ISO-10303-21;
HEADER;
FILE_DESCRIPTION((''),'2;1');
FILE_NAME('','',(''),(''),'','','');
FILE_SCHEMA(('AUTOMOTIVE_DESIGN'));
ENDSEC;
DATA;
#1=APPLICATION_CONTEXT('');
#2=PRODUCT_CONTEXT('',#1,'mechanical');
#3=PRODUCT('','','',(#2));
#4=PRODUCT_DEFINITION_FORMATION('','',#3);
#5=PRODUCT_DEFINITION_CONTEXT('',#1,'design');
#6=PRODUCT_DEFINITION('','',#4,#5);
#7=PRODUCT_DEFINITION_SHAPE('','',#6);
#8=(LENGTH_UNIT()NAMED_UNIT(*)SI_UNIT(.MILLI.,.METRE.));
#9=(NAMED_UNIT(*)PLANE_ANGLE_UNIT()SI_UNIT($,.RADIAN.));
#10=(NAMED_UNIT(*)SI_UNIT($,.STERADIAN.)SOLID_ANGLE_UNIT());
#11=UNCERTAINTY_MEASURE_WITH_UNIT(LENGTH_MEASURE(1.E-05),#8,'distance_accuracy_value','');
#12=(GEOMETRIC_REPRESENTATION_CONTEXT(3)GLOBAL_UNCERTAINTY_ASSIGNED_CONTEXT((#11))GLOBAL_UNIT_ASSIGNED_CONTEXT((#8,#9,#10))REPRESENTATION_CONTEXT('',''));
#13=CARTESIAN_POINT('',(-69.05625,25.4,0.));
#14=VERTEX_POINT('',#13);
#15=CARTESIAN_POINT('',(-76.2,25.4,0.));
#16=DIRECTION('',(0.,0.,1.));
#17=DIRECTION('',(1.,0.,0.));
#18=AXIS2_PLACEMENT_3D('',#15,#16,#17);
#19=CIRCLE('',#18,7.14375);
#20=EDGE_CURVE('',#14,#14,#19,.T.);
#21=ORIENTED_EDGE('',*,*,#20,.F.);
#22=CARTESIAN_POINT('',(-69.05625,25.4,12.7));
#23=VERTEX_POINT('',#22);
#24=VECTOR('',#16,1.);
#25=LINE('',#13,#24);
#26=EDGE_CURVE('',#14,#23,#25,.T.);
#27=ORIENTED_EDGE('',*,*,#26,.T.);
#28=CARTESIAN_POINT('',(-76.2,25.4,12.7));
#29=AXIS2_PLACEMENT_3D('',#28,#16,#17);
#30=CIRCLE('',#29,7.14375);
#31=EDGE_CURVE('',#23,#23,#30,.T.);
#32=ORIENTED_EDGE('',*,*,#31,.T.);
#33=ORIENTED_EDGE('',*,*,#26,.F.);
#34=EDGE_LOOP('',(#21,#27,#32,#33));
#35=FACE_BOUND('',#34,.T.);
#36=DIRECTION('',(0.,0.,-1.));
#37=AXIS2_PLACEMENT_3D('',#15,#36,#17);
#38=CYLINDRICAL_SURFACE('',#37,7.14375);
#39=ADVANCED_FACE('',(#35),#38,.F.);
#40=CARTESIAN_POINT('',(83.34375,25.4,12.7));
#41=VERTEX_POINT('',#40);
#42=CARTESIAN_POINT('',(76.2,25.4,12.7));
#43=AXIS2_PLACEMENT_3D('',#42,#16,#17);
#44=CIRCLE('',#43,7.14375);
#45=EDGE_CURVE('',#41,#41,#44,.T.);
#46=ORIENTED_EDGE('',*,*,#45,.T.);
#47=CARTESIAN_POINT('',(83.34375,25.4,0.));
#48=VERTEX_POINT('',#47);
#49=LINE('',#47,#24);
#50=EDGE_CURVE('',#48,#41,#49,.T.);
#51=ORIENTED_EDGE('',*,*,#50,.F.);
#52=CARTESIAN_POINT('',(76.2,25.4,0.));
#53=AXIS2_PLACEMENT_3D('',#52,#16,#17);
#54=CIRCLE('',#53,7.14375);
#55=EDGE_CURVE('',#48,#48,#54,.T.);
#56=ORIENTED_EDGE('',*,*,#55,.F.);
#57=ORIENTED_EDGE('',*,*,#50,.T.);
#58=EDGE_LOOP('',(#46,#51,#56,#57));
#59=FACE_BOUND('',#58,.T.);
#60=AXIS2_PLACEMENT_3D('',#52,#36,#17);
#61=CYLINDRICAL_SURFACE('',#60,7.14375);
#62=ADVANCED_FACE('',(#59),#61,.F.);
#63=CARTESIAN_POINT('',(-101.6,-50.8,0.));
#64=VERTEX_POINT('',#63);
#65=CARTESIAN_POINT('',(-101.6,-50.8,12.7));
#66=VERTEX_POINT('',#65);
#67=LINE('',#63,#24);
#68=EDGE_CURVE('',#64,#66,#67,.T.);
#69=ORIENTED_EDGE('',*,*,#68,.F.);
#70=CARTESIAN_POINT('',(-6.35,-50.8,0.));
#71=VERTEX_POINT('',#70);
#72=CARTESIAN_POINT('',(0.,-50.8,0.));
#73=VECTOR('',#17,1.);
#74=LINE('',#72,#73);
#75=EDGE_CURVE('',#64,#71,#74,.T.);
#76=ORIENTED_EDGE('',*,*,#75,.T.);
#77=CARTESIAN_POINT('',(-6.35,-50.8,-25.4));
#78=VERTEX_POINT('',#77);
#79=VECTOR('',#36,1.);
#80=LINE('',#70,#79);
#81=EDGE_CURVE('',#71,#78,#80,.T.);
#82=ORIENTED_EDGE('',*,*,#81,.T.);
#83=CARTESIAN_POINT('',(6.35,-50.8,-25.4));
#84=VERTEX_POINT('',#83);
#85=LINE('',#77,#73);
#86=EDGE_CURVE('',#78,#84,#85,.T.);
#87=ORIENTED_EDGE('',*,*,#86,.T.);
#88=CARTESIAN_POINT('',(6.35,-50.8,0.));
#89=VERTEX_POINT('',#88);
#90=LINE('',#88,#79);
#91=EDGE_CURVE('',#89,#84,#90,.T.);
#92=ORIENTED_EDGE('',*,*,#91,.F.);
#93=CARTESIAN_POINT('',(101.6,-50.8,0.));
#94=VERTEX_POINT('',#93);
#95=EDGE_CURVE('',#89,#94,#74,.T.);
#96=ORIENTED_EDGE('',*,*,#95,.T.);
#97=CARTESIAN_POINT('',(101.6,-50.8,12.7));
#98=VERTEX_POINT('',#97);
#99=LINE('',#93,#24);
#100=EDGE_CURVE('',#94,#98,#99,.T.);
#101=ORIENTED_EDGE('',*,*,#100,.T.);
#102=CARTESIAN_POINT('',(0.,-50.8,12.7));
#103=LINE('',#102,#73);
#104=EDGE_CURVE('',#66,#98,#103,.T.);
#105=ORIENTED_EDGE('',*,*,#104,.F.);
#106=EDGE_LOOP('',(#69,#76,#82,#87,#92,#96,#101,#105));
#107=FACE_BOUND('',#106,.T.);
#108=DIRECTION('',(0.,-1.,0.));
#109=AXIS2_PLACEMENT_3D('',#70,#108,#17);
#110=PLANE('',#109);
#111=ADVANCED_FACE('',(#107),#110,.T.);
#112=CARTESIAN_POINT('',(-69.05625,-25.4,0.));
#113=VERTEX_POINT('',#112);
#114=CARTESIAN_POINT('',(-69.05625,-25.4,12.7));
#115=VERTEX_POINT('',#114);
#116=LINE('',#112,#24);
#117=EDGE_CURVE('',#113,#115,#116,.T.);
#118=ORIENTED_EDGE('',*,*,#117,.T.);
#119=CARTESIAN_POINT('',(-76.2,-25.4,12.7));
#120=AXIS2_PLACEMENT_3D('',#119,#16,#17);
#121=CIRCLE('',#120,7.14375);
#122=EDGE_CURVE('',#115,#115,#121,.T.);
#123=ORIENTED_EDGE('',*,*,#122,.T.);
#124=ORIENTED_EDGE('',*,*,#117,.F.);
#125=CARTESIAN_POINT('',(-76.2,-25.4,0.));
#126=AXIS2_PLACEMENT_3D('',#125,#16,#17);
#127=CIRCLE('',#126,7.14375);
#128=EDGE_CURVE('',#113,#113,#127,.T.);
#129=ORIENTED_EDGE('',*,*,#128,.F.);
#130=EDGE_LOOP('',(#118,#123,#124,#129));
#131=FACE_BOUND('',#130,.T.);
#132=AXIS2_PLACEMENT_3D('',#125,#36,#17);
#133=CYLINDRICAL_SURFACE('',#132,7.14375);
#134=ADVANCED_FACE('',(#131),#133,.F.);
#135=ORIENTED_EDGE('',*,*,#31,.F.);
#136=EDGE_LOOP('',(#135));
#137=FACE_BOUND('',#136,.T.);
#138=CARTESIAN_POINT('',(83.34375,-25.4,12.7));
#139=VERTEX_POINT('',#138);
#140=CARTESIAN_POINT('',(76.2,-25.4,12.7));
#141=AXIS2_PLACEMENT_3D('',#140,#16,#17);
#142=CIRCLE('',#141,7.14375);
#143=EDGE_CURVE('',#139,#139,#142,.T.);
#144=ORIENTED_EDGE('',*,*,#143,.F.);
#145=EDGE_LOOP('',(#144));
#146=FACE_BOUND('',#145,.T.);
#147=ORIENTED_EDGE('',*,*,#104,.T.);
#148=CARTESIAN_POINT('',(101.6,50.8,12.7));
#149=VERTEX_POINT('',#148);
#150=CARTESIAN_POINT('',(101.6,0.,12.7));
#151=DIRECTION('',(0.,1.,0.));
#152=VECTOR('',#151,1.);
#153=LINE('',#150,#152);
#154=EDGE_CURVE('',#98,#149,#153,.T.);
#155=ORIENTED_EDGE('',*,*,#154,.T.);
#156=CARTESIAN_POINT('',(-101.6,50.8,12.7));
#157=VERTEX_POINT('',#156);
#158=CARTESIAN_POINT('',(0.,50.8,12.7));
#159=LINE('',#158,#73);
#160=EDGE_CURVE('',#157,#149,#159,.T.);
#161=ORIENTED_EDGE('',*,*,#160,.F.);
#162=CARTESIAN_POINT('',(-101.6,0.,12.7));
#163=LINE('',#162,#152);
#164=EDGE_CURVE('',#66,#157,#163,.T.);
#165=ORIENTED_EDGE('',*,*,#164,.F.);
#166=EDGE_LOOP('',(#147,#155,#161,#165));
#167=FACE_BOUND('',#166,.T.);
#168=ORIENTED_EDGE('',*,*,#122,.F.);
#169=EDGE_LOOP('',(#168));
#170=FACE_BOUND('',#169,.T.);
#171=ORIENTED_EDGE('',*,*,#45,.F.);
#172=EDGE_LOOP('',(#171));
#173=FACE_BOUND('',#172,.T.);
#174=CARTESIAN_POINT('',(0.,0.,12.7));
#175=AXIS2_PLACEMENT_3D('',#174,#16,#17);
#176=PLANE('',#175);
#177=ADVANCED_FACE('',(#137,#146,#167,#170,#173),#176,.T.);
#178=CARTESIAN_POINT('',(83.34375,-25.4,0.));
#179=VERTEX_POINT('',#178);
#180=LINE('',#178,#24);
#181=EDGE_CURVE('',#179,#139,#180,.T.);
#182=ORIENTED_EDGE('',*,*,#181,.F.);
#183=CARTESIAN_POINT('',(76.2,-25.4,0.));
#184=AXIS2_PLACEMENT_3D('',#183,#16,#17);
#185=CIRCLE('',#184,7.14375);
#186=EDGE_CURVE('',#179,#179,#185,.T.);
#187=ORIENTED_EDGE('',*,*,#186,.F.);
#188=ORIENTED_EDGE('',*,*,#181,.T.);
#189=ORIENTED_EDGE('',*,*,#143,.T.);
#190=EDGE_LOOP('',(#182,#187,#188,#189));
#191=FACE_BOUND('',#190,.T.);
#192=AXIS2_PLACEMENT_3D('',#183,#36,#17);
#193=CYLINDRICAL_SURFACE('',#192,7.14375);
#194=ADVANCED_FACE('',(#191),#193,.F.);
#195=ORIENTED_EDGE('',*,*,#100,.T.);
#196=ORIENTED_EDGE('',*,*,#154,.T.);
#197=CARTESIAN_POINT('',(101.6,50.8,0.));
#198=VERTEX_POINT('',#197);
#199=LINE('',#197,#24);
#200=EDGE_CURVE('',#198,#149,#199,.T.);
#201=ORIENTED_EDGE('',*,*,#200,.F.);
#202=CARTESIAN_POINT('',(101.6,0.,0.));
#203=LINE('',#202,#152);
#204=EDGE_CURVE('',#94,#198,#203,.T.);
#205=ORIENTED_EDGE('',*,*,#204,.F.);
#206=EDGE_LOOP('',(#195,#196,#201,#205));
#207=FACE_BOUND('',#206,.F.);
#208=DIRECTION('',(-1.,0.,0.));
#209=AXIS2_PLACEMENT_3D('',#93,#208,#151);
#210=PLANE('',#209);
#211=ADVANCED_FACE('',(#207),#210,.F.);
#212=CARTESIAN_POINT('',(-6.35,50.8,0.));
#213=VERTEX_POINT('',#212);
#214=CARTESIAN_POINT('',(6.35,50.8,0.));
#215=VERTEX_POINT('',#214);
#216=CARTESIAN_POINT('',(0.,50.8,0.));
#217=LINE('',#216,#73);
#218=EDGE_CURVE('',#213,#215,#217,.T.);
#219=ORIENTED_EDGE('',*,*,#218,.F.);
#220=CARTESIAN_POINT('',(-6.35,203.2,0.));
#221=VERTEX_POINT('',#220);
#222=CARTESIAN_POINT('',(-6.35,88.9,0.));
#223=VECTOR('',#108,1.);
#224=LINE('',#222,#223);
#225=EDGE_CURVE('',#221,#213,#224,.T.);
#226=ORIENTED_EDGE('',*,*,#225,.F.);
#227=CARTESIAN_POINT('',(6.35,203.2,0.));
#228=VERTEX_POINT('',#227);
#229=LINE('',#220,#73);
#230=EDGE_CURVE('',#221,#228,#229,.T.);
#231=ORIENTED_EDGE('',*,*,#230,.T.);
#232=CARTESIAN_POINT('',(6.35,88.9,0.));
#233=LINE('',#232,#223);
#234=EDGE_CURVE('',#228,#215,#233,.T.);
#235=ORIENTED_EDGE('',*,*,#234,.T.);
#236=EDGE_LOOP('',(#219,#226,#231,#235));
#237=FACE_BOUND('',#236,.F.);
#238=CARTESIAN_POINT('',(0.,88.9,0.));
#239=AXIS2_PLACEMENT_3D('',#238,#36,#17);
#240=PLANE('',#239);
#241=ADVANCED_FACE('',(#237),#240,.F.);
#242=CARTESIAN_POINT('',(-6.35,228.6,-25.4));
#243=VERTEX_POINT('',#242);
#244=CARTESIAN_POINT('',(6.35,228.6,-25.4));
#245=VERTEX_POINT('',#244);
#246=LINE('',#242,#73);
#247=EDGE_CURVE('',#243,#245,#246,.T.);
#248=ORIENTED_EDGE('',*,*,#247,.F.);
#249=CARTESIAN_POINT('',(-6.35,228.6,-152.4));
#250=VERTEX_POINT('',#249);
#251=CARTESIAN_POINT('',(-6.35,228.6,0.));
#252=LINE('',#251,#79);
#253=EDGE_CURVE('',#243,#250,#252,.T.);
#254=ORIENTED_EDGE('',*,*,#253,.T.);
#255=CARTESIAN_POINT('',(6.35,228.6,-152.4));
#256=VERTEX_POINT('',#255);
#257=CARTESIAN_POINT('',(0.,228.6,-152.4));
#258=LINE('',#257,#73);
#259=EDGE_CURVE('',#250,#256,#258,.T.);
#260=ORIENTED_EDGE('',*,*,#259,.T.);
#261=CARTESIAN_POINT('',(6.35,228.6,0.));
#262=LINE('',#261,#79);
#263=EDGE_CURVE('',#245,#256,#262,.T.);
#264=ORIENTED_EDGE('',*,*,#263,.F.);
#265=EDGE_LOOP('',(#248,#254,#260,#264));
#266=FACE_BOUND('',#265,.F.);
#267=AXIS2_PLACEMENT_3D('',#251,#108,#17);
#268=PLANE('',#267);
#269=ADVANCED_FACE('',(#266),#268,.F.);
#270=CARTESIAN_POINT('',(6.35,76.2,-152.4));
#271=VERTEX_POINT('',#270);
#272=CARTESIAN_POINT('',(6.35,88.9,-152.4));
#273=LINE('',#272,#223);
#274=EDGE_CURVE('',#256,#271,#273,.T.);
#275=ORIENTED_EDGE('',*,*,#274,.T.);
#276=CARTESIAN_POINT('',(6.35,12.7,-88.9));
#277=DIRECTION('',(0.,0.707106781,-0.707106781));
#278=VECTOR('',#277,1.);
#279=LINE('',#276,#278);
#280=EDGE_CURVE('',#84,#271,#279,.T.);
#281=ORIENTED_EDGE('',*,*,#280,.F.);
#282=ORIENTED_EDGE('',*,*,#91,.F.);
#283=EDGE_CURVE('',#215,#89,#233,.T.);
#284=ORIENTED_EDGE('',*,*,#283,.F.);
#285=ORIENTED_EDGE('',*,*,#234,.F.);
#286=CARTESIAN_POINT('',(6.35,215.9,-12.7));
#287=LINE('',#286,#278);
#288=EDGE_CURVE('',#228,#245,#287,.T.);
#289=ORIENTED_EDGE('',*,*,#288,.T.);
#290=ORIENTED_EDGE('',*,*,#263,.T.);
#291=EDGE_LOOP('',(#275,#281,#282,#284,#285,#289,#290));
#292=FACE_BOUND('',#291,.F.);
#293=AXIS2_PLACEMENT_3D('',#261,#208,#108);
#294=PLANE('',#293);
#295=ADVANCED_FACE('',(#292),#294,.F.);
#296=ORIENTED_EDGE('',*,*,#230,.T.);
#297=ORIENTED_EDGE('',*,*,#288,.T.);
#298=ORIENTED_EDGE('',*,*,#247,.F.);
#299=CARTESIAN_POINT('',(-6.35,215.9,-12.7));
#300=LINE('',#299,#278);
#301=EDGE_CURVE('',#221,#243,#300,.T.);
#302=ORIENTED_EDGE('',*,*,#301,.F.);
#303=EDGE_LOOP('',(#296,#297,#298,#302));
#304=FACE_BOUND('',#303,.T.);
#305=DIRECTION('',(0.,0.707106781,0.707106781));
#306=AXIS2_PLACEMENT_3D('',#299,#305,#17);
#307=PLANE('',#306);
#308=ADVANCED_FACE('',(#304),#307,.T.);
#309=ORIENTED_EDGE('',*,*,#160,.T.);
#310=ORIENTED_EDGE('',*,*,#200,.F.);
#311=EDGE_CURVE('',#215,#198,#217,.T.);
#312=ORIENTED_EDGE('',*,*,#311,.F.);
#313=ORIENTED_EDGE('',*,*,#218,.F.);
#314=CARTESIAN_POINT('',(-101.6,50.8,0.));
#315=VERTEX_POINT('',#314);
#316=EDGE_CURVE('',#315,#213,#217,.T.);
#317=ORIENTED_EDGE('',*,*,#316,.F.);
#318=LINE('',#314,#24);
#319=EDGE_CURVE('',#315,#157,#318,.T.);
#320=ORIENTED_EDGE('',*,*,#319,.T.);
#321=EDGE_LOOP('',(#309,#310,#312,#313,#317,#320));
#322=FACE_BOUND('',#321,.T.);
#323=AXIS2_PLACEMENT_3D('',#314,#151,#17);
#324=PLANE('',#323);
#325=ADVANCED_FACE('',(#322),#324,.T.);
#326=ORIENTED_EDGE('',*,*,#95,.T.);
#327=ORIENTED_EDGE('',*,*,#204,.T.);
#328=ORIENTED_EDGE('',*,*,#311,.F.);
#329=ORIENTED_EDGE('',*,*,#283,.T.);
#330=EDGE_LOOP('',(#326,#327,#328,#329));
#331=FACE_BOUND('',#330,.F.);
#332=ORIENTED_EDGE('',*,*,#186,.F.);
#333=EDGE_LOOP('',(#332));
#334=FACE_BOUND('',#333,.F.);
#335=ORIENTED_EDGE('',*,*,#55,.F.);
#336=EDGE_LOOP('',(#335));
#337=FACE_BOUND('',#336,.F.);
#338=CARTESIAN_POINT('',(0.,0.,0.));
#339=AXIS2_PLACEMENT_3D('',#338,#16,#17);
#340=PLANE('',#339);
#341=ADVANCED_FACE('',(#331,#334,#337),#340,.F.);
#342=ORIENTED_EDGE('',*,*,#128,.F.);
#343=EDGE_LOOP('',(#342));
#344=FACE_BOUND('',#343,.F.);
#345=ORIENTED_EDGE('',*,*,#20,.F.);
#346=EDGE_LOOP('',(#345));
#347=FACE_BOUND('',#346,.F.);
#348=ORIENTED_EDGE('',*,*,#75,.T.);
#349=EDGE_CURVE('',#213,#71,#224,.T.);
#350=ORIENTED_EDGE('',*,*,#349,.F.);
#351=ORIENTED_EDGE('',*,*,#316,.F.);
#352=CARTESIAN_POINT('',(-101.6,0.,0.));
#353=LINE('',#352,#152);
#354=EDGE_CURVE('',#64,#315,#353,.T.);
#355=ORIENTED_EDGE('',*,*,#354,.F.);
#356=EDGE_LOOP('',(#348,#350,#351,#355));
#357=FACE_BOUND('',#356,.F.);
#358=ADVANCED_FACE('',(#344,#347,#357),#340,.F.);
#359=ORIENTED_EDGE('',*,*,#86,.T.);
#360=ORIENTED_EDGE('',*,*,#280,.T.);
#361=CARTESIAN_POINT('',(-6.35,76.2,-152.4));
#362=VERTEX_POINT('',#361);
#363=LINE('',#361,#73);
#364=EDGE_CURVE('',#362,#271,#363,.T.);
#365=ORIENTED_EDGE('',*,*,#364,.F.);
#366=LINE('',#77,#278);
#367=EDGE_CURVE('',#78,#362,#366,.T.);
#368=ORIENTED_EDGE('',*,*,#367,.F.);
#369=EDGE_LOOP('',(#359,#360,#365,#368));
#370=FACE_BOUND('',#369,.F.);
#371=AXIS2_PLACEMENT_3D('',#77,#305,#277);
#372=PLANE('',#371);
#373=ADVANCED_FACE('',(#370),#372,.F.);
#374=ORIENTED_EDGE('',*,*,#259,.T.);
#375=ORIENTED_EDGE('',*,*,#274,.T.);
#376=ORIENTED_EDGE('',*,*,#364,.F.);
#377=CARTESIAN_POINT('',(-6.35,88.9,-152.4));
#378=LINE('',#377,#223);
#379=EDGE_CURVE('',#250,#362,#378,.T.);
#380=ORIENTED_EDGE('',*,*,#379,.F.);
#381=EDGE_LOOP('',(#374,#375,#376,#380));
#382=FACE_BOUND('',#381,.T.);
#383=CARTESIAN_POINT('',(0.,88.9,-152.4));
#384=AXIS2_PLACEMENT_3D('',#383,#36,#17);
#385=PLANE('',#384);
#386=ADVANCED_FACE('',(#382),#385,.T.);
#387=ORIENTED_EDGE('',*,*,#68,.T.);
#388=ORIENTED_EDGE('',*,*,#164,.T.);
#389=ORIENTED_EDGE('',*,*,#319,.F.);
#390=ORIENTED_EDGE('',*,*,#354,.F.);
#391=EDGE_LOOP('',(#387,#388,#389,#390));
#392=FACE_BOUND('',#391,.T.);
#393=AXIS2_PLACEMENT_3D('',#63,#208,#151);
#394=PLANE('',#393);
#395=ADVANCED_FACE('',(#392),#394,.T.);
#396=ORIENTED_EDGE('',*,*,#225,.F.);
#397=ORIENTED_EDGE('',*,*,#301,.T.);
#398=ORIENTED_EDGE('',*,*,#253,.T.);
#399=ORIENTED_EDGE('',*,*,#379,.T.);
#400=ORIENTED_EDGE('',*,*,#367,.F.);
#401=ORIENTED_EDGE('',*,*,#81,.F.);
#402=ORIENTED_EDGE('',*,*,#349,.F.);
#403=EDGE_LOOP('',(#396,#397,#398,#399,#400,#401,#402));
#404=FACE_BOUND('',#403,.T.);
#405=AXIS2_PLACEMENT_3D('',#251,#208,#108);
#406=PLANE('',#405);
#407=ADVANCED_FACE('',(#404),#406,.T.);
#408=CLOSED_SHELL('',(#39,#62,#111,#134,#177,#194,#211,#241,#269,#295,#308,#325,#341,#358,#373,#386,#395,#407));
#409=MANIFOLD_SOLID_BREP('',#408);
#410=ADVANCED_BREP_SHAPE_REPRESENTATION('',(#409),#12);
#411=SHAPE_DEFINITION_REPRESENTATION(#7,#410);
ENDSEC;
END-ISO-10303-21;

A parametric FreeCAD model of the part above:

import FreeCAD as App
import Part
import Sketcher

V = App.Vector
Q = App.Units.Quantity


def edges_at(feature, points):
    """Names of the edges that pass closest to the given points."""
    edges = feature.Shape.Edges
    near = lambda p: min(range(len(edges)), key=lambda i: edges[i].distToShape(Part.Vertex(*p))[0])
    return sorted({f"Edge{near(p) + 1}" for p in points})

doc = App.newDocument("Part")
body = doc.addObject("PartDesign::Body", "Body")

sketch1 = body.newObject("Sketcher::SketchObject", "Sketch")
sketch1.AttachmentSupport = (doc.getObject("XY_Plane"), [""])
sketch1.MapMode = "FlatFace"
sketch1.addGeometry([
    Part.LineSegment(V(-101.6, 50.8, 0), V(-101.6, -50.8, 0)),
    Part.LineSegment(V(-101.6, -50.8, 0), V(101.6, -50.8, 0)),
    Part.LineSegment(V(101.6, -50.8, 0), V(101.6, 50.8, 0)),
    Part.LineSegment(V(101.6, 50.8, 0), V(-101.6, 50.8, 0)),
    Part.Circle(V(-76.2, -25.4, 0), V(0, 0, 1), 7.14375),
    Part.Circle(V(76.2, -25.4, 0), V(0, 0, 1), 7.14375),
    Part.Circle(V(-76.2, 25.4, 0), V(0, 0, 1), 7.14375),
    Part.Circle(V(76.2, 25.4, 0), V(0, 0, 1), 7.14375),
], False)
sketch1.addConstraint([
    Sketcher.Constraint("Coincident", 0, 2, 1, 1),
    Sketcher.Constraint("Coincident", 1, 2, 2, 1),
    Sketcher.Constraint("Coincident", 2, 2, 3, 1),
    Sketcher.Constraint("Coincident", 3, 2, 0, 1),
    Sketcher.Constraint("Vertical", 0),
    Sketcher.Constraint("Horizontal", 1),
    Sketcher.Constraint("Vertical", 2),
    Sketcher.Constraint("Horizontal", 3),
    Sketcher.Constraint("Equal", 4, 5),
    Sketcher.Constraint("Equal", 5, 6),
    Sketcher.Constraint("Equal", 6, 7),
    Sketcher.Constraint("Symmetric", 5, 3, 6, 3, -1, 1),
    Sketcher.Constraint("Symmetric", 4, 3, 7, 3, -1, 1),
    Sketcher.Constraint("Symmetric", 0, 2, 2, 2, -1, 1),
    Sketcher.Constraint("Symmetric", 4, 3, 5, 3, -2),
    Sketcher.Constraint("DistanceX", 1, 1, 1, 2, Q("8 in")),
    Sketcher.Constraint("DistanceY", 0, 2, 0, 1, Q("4 in")),
    Sketcher.Constraint("Diameter", 4, Q("0.5625 in")),
    Sketcher.Constraint("DistanceX", 4, 3, -1, 1, Q("3 in")),
    Sketcher.Constraint("DistanceY", 4, 3, -1, 1, Q("1 in")),
])
pad1 = body.newObject("PartDesign::Pad", "Pad")
pad1.Profile = sketch1
pad1.Length = Q("0.5 in")

sketch2 = body.newObject("Sketcher::SketchObject", "Sketch001")
sketch2.AttachmentSupport = (doc.getObject("XY_Plane"), [""])
sketch2.MapMode = "FlatFace"
sketch2.addGeometry([
    Part.LineSegment(V(-6.35, -50.8, 0), V(-6.35, 228.6, 0)),
    Part.LineSegment(V(-6.35, 228.6, 0), V(6.35, 228.6, 0)),
    Part.LineSegment(V(6.35, 228.6, 0), V(6.35, -50.8, 0)),
    Part.LineSegment(V(6.35, -50.8, 0), V(-6.35, -50.8, 0)),
], False)
sketch2.addConstraint([
    Sketcher.Constraint("Coincident", 0, 2, 1, 1),
    Sketcher.Constraint("Coincident", 1, 2, 2, 1),
    Sketcher.Constraint("Coincident", 2, 2, 3, 1),
    Sketcher.Constraint("Coincident", 3, 2, 0, 1),
    Sketcher.Constraint("Vertical", 0),
    Sketcher.Constraint("Horizontal", 1),
    Sketcher.Constraint("Vertical", 2),
    Sketcher.Constraint("Horizontal", 3),
    Sketcher.Constraint("DistanceY", 0, 1, 0, 2, Q("11 in")),
    Sketcher.Constraint("DistanceX", 1, 1, 1, 2, Q("0.5 in")),
    Sketcher.Constraint("DistanceY", -1, 1, 0, 2, Q("9 in")),
    Sketcher.Constraint("DistanceX", 0, 2, -1, 1, Q("0.25 in")),
])
pad2 = body.newObject("PartDesign::Pad", "Pad001")
pad2.Profile = sketch2
pad2.Length = Q("6 in")
pad2.Reversed = True

sketch3 = body.newObject("Sketcher::SketchObject", "Sketch002")
sketch3.AttachmentSupport = (doc.getObject("YZ_Plane"), [""])
sketch3.MapMode = "FlatFace"
sketch3.AttachmentOffset = App.Placement(V(0, 0, -0.25 * 25.4), App.Rotation())
sketch3.addGeometry([
    Part.LineSegment(V(-50.8, -25.4, 0), V(76.2, -152.4, 0)),
    Part.LineSegment(V(76.2, -152.4, 0), V(-50.8, -152.4, 0)),
    Part.LineSegment(V(-50.8, -152.4, 0), V(-50.8, -25.4, 0)),
], False)
sketch3.addConstraint([
    Sketcher.Constraint("Coincident", 0, 2, 1, 1),
    Sketcher.Constraint("Coincident", 1, 2, 2, 1),
    Sketcher.Constraint("Coincident", 2, 2, 0, 1),
    Sketcher.Constraint("Horizontal", 1),
    Sketcher.Constraint("Vertical", 2),
    Sketcher.Constraint("Equal", 1, 2),
    Sketcher.Constraint("DistanceX", 1, 2, 1, 1, Q("5 in")),
    Sketcher.Constraint("DistanceX", -1, 1, 0, 2, Q("3 in")),
    Sketcher.Constraint("DistanceY", 0, 2, -1, 1, Q("6 in")),
])
pocket1 = body.newObject("PartDesign::Pocket", "Pocket")
pocket1.Profile = sketch3
pocket1.Type = "ThroughAll"
pocket1.Reversed = True
doc.recompute()

chamfer = body.newObject("PartDesign::Chamfer", "Chamfer")
chamfer.Base = (pocket1, edges_at(pocket1, [(0, 228.6, 0)]))
chamfer.Size = Q("1 in")

doc.recompute()
